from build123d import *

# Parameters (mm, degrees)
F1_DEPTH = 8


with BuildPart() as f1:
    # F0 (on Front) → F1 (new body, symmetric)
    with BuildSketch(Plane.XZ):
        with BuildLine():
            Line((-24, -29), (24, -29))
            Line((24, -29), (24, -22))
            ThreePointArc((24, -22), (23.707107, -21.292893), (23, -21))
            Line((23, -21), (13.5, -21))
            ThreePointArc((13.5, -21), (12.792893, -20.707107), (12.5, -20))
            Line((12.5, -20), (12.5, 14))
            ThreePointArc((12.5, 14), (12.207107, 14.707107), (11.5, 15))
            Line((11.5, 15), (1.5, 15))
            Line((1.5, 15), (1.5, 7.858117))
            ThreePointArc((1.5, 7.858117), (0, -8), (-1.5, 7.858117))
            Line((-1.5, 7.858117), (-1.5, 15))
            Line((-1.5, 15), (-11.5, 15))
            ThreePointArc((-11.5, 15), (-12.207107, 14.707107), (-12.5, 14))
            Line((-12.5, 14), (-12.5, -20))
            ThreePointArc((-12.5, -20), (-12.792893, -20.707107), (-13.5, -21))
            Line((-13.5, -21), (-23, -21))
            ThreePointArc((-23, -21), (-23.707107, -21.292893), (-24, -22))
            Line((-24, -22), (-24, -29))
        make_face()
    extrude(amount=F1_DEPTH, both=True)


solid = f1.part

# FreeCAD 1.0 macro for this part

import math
import FreeCAD as App
import Part
import Sketcher

doc = App.newDocument("Part")
body = doc.addObject("PartDesign::Body", "Body")

# Sketch on XZ plane
sketch1 = body.newObject("Sketcher::SketchObject", "Sketch")
sketch1.AttachmentSupport = (doc.getObject("XZ_Plane"), [""])
sketch1.MapMode = "FlatFace"
sketch1.addGeometry([
    Part.LineSegment(App.Vector(-24, -29, 0), App.Vector(24, -29, 0)),  # 0
    Part.LineSegment(App.Vector(24, -29, 0), App.Vector(24, -22, 0)),  # 1
    Part.ArcOfCircle(Part.Circle(App.Vector(23.000001, -21.999999, 0), App.Vector(0, 0, 1), 0.999999), math.radians(-0.000043), math.radians(90.000043)),  # 2
    Part.LineSegment(App.Vector(23, -21, 0), App.Vector(13.5, -21, 0)),  # 3
    Part.ArcOfCircle(Part.Circle(App.Vector(13.499999, -20.000001, 0), App.Vector(0, 0, 1), 0.999999), math.radians(179.999957), math.radians(270.000043)),  # 4
    Part.LineSegment(App.Vector(12.5, -20, 0), App.Vector(12.5, 14, 0)),  # 5
    Part.ArcOfCircle(Part.Circle(App.Vector(11.500001, 14.000001, 0), App.Vector(0, 0, 1), 0.999999), math.radians(-0.000043), math.radians(90.000043)),  # 6
    Part.LineSegment(App.Vector(11.5, 15, 0), App.Vector(1.5, 15, 0)),  # 7
    Part.LineSegment(App.Vector(1.5, 15, 0), App.Vector(1.5, 7.858117, 0)),  # 8
    Part.ArcOfCircle(Part.Circle(App.Vector(0, 0, 0), App.Vector(0, 0, 1), 8), math.radians(100.806923), math.radians(439.193077)),  # 9
    Part.LineSegment(App.Vector(-1.5, 7.858117, 0), App.Vector(-1.5, 15, 0)),  # 10
    Part.LineSegment(App.Vector(-1.5, 15, 0), App.Vector(-11.5, 15, 0)),  # 11
    Part.ArcOfCircle(Part.Circle(App.Vector(-11.500001, 14.000001, 0), App.Vector(0, 0, 1), 0.999999), math.radians(89.999957), math.radians(180.000043)),  # 12
    Part.LineSegment(App.Vector(-12.5, 14, 0), App.Vector(-12.5, -20, 0)),  # 13
    Part.ArcOfCircle(Part.Circle(App.Vector(-13.499999, -20.000001, 0), App.Vector(0, 0, 1), 0.999999), math.radians(-90.000043), math.radians(0.000043)),  # 14
    Part.LineSegment(App.Vector(-13.5, -21, 0), App.Vector(-23, -21, 0)),  # 15
    Part.ArcOfCircle(Part.Circle(App.Vector(-23.000001, -21.999999, 0), App.Vector(0, 0, 1), 0.999999), math.radians(89.999957), math.radians(180.000043)),  # 16
    Part.LineSegment(App.Vector(-24, -22, 0), App.Vector(-24, -29, 0)),  # 17
], False)
sketch1.addConstraint([
    Sketcher.Constraint("Coincident", 0, 2, 1, 1),
    Sketcher.Constraint("Tangent", 1, 2, 2, 1),
    Sketcher.Constraint("Tangent", 2, 2, 3, 1),
    Sketcher.Constraint("Tangent", 3, 2, 4, 2),
    Sketcher.Constraint("Tangent", 4, 1, 5, 1),
    Sketcher.Constraint("Tangent", 5, 2, 6, 1),
    Sketcher.Constraint("Tangent", 6, 2, 7, 1),
    Sketcher.Constraint("Coincident", 7, 2, 8, 1),
    Sketcher.Constraint("Coincident", 8, 2, 9, 2),
    Sketcher.Constraint("Coincident", 9, 1, 10, 1),
    Sketcher.Constraint("Coincident", 10, 2, 11, 1),
    Sketcher.Constraint("Tangent", 11, 2, 12, 1),
    Sketcher.Constraint("Tangent", 12, 2, 13, 1),
    Sketcher.Constraint("Tangent", 13, 2, 14, 2),
    Sketcher.Constraint("Tangent", 14, 1, 15, 1),
    Sketcher.Constraint("Tangent", 15, 2, 16, 1),
    Sketcher.Constraint("Tangent", 16, 2, 17, 1),
    Sketcher.Constraint("Coincident", 17, 2, 0, 1),
    Sketcher.Constraint("Horizontal", 0),
    Sketcher.Constraint("Vertical", 1),
    Sketcher.Constraint("Horizontal", 3),
    Sketcher.Constraint("Vertical", 5),
    Sketcher.Constraint("Horizontal", 7),
    Sketcher.Constraint("Vertical", 8),
    Sketcher.Constraint("Vertical", 10),
    Sketcher.Constraint("Horizontal", 11),
    Sketcher.Constraint("Vertical", 13),
    Sketcher.Constraint("Horizontal", 15),
    Sketcher.Constraint("Vertical", 17),
    Sketcher.Constraint("Coincident", 9, 3, -1, 1),
    Sketcher.Constraint("Equal", 2, 4),
    Sketcher.Constraint("Equal", 4, 6),
    Sketcher.Constraint("Equal", 6, 12),
    Sketcher.Constraint("Equal", 12, 14),
    Sketcher.Constraint("Equal", 14, 16),
    Sketcher.Constraint("Symmetric", 6, 3, 12, 3, -2),
    Sketcher.Constraint("Symmetric", 2, 3, 16, 3, -2),
    Sketcher.Constraint("Horizontal", 8, 2, 9, 1),
    Sketcher.Constraint("Radius", 2, 0.999999),
    Sketcher.Constraint("Radius", 9, 8.0),
    Sketcher.Constraint("DistanceX", 0, 1, 0, 2, 48.0),
    Sketcher.Constraint("DistanceX", 7, 2, 7, 1, 10.0),
    Sketcher.Constraint("DistanceY", 1, 1, 1, 2, 7.0),
    Sketcher.Constraint("DistanceY", 5, 1, 5, 2, 34.0),
    Sketcher.Constraint("DistanceX", 3, 2, 3, 1, 9.5),
    Sketcher.Constraint("DistanceY", 2, 3, -1, 1, 21.999999),
])
pad1 = body.newObject("PartDesign::Pad", "Pad")
pad1.Profile = sketch1
pad1.Length = 16
pad1.Midplane = True

doc.recompute()
